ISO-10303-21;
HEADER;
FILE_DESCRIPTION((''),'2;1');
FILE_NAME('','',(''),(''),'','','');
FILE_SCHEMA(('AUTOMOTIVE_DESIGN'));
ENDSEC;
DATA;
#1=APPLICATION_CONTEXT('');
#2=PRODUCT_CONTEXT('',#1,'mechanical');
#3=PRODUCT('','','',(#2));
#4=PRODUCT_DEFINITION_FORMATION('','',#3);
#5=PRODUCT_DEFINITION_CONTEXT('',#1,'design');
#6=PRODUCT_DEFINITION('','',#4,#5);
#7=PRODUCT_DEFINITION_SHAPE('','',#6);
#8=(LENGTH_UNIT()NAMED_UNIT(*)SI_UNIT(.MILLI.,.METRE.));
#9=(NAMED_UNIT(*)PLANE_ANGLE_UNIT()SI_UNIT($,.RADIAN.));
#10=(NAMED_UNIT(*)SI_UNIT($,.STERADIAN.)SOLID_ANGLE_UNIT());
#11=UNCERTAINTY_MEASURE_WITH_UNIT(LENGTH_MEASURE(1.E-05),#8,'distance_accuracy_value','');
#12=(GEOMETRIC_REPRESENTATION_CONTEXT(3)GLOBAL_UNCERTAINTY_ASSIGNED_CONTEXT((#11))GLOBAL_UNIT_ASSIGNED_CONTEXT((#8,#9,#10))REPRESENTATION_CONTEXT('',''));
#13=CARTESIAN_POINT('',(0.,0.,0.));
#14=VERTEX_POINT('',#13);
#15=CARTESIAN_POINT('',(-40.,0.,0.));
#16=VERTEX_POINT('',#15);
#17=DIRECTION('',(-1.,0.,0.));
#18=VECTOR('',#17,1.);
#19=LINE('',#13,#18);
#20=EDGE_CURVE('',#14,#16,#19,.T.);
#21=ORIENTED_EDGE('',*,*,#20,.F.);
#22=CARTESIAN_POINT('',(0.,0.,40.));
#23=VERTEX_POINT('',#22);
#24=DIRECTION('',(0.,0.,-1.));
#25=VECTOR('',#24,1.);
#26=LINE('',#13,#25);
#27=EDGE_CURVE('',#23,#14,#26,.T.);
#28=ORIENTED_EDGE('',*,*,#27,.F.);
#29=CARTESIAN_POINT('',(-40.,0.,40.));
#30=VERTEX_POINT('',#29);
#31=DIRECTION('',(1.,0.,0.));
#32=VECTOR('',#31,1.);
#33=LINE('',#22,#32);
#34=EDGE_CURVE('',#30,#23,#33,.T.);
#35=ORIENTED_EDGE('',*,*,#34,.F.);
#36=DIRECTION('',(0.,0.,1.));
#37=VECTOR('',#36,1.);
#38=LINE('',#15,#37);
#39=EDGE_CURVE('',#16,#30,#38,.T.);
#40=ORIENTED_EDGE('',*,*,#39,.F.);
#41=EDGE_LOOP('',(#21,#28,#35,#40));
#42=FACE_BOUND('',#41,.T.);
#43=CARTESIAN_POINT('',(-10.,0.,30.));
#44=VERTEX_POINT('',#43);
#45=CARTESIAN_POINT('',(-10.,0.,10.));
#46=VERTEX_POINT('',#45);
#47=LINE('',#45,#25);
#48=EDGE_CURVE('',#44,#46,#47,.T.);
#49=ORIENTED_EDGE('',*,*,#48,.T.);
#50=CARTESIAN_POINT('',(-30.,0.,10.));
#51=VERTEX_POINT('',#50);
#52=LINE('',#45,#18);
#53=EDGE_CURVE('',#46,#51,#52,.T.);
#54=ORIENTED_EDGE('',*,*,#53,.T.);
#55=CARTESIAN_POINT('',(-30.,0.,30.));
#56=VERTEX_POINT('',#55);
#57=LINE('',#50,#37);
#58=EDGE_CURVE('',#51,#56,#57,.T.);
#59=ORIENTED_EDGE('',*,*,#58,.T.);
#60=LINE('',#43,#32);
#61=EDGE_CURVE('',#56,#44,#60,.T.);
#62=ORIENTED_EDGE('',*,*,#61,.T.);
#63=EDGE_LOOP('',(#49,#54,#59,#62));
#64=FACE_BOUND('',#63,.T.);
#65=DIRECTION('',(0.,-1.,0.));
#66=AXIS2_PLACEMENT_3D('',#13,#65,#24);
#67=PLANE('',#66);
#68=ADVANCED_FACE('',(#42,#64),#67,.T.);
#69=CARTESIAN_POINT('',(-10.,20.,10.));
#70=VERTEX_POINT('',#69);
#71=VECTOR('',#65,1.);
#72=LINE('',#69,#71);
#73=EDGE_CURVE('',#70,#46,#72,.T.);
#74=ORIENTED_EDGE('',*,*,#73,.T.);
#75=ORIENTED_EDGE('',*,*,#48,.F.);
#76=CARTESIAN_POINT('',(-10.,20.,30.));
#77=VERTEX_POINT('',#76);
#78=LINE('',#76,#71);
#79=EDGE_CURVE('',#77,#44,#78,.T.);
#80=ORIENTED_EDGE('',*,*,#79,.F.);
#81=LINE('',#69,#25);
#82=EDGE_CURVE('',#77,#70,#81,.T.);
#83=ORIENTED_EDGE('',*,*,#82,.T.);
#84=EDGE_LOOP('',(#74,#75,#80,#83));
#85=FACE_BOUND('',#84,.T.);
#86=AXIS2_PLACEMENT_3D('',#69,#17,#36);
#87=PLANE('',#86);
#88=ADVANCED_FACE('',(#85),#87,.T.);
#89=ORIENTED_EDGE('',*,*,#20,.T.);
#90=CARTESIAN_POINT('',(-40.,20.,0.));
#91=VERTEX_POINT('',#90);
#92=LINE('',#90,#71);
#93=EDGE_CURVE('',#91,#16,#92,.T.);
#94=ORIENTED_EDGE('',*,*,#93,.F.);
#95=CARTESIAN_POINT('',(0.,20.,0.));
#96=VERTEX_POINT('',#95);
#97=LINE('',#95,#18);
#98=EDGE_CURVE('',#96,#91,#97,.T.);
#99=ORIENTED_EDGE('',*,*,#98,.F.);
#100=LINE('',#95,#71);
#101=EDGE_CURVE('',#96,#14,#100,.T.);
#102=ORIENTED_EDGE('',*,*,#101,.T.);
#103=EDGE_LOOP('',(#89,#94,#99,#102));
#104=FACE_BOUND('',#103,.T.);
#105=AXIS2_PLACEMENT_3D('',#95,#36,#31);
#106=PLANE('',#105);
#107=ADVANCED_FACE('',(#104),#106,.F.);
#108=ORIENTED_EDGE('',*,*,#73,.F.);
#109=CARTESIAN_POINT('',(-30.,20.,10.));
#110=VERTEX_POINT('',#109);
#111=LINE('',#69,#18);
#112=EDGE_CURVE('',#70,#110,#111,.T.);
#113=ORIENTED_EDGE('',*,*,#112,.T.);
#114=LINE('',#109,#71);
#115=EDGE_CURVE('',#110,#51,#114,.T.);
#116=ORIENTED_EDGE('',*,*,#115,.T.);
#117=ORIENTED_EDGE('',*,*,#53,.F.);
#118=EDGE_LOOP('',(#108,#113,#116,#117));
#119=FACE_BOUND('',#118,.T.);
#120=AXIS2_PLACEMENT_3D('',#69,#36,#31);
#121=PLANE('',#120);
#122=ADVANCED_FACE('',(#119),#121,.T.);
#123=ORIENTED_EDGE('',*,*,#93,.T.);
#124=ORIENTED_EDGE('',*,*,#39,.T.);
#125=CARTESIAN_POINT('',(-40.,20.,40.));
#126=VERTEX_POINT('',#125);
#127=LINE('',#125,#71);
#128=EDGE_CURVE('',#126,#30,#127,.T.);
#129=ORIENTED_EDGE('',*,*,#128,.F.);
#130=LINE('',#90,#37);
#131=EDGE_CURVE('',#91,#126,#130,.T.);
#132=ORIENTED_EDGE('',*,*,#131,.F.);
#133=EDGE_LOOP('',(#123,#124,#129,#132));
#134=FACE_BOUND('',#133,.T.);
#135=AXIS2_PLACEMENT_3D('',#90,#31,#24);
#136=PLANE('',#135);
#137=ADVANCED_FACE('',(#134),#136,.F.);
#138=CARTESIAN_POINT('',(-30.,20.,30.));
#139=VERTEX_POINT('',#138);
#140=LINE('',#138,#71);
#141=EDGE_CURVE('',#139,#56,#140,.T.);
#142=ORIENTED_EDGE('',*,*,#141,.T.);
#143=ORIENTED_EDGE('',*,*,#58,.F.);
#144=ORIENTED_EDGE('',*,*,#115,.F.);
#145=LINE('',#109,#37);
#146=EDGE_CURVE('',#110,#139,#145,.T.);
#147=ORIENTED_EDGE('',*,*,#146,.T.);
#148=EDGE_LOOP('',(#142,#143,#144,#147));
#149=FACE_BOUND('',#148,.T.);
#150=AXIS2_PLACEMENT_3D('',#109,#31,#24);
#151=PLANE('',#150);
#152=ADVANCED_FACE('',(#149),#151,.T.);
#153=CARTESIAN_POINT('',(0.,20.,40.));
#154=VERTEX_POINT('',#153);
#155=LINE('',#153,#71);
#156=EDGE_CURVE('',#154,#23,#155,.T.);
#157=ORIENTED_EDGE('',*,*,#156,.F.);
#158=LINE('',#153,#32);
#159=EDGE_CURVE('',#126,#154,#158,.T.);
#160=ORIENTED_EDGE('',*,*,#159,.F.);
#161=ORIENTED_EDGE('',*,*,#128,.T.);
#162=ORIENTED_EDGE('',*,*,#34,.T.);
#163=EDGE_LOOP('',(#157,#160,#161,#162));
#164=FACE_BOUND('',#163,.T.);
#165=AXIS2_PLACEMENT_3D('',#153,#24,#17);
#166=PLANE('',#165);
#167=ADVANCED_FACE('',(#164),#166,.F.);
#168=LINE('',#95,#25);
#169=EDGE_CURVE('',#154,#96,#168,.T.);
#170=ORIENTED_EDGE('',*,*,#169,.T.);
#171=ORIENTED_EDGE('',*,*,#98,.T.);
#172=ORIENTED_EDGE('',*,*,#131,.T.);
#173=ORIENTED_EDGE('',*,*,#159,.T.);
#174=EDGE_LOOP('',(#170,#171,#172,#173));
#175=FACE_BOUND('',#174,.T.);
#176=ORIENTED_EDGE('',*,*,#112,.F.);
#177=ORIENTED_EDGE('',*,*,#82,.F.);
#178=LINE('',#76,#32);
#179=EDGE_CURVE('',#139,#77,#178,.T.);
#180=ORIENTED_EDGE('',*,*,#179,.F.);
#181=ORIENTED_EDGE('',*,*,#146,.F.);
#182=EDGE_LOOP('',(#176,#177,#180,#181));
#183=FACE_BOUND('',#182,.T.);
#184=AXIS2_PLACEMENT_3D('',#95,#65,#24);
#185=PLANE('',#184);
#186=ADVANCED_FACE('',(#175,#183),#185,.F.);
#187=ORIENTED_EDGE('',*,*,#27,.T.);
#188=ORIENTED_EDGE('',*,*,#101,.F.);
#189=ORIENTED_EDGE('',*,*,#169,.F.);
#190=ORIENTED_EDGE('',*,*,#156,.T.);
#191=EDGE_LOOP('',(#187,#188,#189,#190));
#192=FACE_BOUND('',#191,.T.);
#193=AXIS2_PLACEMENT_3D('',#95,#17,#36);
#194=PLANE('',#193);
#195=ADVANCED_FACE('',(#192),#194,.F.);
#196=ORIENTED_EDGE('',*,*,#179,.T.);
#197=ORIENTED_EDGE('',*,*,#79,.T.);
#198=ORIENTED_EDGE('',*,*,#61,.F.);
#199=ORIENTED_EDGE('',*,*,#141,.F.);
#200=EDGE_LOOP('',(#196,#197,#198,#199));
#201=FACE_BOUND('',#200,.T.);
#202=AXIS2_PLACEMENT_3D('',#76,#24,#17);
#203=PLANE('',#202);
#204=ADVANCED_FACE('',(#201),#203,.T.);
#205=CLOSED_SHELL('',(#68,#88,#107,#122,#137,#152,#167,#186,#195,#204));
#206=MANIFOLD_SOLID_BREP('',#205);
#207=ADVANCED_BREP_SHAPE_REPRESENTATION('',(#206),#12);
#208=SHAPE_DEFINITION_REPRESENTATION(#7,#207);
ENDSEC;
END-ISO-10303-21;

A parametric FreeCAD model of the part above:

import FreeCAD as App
import Part
import Sketcher

doc = App.newDocument("Part")
body = doc.addObject("PartDesign::Body", "Body")

sketch1 = body.newObject("Sketcher::SketchObject", "Sketch")
sketch1.AttachmentSupport = (doc.getObject("XZ_Plane"), [""])
sketch1.MapMode = "FlatFace"
sketch1.addGeometry([
    Part.LineSegment(App.Vector(-40, 0, 0), App.Vector(-40, 40, 0)),
    Part.LineSegment(App.Vector(-40, 40, 0), App.Vector(0, 40, 0)),
    Part.LineSegment(App.Vector(0, 40, 0), App.Vector(0, 0, 0)),
    Part.LineSegment(App.Vector(0, 0, 0), App.Vector(-40, 0, 0)),
    Part.LineSegment(App.Vector(-10, 30, 0), App.Vector(-30, 30, 0)),
    Part.LineSegment(App.Vector(-30, 30, 0), App.Vector(-30, 10, 0)),
    Part.LineSegment(App.Vector(-30, 10, 0), App.Vector(-10, 10, 0)),
    Part.LineSegment(App.Vector(-10, 10, 0), App.Vector(-10, 30, 0)),
], False)
sketch1.addConstraint([
    Sketcher.Constraint("Coincident", 0, 2, 1, 1),
    Sketcher.Constraint("Coincident", 1, 2, 2, 1),
    Sketcher.Constraint("Coincident", 2, 2, 3, 1),
    Sketcher.Constraint("Coincident", 3, 2, 0, 1),
    Sketcher.Constraint("Coincident", 4, 2, 5, 1),
    Sketcher.Constraint("Coincident", 5, 2, 6, 1),
    Sketcher.Constraint("Coincident", 6, 2, 7, 1),
    Sketcher.Constraint("Coincident", 7, 2, 4, 1),
    Sketcher.Constraint("Vertical", 0),
    Sketcher.Constraint("Horizontal", 1),
    Sketcher.Constraint("Vertical", 2),
    Sketcher.Constraint("Horizontal", 3),
    Sketcher.Constraint("Horizontal", 4),
    Sketcher.Constraint("Vertical", 5),
    Sketcher.Constraint("Horizontal", 6),
    Sketcher.Constraint("Vertical", 7),
    Sketcher.Constraint("Coincident", 2, 2, -1, 1),
    Sketcher.Constraint("Equal", 3, 0),
    Sketcher.Constraint("Equal", 6, 5),
    Sketcher.Constraint("DistanceX", 1, 1, 1, 2, 40.0),
    Sketcher.Constraint("DistanceX", 4, 2, 4, 1, 20.0),
    Sketcher.Constraint("DistanceX", 4, 2, -1, 1, 30.0),
    Sketcher.Constraint("DistanceY", -1, 1, 4, 2, 30.0),
])
pad1 = body.newObject("PartDesign::Pad", "Pad")
pad1.Profile = sketch1
pad1.Length = 20
pad1.Reversed = True

doc.recompute()
